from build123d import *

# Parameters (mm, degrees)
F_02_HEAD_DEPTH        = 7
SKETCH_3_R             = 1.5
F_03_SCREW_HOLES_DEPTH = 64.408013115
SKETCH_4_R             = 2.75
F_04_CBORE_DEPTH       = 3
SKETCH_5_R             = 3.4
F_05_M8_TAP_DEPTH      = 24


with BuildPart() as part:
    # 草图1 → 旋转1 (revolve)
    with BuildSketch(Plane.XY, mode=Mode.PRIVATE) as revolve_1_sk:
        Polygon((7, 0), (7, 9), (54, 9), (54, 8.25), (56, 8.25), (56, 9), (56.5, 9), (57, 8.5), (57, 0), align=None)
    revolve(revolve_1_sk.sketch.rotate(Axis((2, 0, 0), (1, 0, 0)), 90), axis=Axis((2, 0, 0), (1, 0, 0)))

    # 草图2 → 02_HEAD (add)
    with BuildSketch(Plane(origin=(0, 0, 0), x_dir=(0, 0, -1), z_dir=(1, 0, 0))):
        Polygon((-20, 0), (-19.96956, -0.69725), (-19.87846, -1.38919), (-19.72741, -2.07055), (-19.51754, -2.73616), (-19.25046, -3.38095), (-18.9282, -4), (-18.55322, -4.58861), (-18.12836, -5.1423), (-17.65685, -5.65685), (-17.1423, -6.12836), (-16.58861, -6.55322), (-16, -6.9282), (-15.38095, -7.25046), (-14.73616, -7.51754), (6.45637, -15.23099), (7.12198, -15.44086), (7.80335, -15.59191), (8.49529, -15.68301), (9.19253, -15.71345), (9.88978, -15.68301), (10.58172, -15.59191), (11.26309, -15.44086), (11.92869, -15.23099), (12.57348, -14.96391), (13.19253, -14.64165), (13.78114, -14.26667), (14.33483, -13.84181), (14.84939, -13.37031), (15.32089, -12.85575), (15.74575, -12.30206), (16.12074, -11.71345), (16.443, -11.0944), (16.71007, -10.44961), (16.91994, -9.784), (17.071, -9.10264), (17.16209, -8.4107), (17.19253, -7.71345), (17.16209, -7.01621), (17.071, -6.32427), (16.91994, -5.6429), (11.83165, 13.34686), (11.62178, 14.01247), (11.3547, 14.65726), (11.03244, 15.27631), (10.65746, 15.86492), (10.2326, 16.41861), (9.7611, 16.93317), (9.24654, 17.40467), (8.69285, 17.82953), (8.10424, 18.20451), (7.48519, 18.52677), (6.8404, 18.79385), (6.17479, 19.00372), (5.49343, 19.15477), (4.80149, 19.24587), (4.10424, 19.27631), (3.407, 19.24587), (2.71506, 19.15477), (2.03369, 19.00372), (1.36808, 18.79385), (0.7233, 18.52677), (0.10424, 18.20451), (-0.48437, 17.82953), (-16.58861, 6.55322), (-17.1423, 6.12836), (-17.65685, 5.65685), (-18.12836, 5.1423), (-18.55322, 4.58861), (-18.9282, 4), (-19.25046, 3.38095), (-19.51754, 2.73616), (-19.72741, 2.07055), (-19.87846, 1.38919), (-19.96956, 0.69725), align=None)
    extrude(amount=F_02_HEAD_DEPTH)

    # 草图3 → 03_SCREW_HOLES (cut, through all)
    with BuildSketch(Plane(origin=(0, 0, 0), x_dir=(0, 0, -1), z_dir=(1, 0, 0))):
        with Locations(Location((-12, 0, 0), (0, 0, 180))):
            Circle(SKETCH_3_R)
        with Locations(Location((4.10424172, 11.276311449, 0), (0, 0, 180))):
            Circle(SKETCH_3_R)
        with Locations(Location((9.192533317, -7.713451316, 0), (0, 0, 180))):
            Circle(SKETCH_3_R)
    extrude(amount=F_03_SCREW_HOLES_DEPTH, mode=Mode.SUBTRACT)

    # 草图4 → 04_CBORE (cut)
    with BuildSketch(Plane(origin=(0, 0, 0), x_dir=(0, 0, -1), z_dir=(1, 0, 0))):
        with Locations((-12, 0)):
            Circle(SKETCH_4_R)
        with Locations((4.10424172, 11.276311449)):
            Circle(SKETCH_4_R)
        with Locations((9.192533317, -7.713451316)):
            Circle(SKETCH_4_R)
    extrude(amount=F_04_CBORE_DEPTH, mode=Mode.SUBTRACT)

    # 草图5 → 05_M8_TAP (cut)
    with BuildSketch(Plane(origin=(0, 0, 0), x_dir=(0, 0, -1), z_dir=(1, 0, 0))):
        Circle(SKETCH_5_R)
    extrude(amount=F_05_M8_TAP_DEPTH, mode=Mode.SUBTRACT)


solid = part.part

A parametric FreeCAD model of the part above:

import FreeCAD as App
import Part
import Sketcher
Q = App.Units.Quantity

doc = App.newDocument("Part")
body = doc.addObject("PartDesign::Body", "Body")

# Sketch on XY plane
sketch1 = body.newObject("Sketcher::SketchObject", "Sketch")
sketch1.AttachmentSupport = (doc.getObject("XY_Plane"), [""])
sketch1.MapMode = "FlatFace"
sketch1.addGeometry(Part.LineSegment(App.Vector(7, 9, 0), App.Vector(7, 0, 0)), False)
sketch1.addGeometry(Part.LineSegment(App.Vector(7, 0, 0), App.Vector(57, 0, 0)), False)
sketch1.addGeometry(Part.LineSegment(App.Vector(57, 0, 0), App.Vector(57, 8.5, 0)), False)
sketch1.addGeometry(Part.LineSegment(App.Vector(57, 8.5, 0), App.Vector(56.5, 9, 0)), False)
sketch1.addGeometry(Part.LineSegment(App.Vector(56.5, 9, 0), App.Vector(56, 9, 0)), False)
sketch1.addGeometry(Part.LineSegment(App.Vector(56, 9, 0), App.Vector(56, 8.25, 0)), False)
sketch1.addGeometry(Part.LineSegment(App.Vector(56, 8.25, 0), App.Vector(54, 8.25, 0)), False)
sketch1.addGeometry(Part.LineSegment(App.Vector(54, 8.25, 0), App.Vector(54, 9, 0)), False)
sketch1.addGeometry(Part.LineSegment(App.Vector(54, 9, 0), App.Vector(7, 9, 0)), False)
sketch1.addConstraint(Sketcher.Constraint("Coincident", 0, 2, 1, 1))
sketch1.addConstraint(Sketcher.Constraint("Coincident", 1, 2, 2, 1))
sketch1.addConstraint(Sketcher.Constraint("Coincident", 2, 2, 3, 1))
sketch1.addConstraint(Sketcher.Constraint("Coincident", 3, 2, 4, 1))
sketch1.addConstraint(Sketcher.Constraint("Coincident", 4, 2, 5, 1))
sketch1.addConstraint(Sketcher.Constraint("Coincident", 5, 2, 6, 1))
sketch1.addConstraint(Sketcher.Constraint("Coincident", 6, 2, 7, 1))
sketch1.addConstraint(Sketcher.Constraint("Coincident", 7, 2, 8, 1))
sketch1.addConstraint(Sketcher.Constraint("Coincident", 8, 2, 0, 1))
sketch1.addConstraint(Sketcher.Constraint("Vertical", 0))
sketch1.addConstraint(Sketcher.Constraint("Horizontal", 1))
sketch1.addConstraint(Sketcher.Constraint("Vertical", 2))
sketch1.addConstraint(Sketcher.Constraint("Horizontal", 4))
sketch1.addConstraint(Sketcher.Constraint("Vertical", 5))
sketch1.addConstraint(Sketcher.Constraint("Horizontal", 6))
sketch1.addConstraint(Sketcher.Constraint("Vertical", 7))
sketch1.addConstraint(Sketcher.Constraint("Horizontal", 8))
sketch1.addConstraint(Sketcher.Constraint("PointOnObject", 0, 2, -1))
sketch1.addConstraint(Sketcher.Constraint("Horizontal", 4, 2, 7, 2))
sketch1.addConstraint(Sketcher.Constraint("DistanceX", 1, 1, 1, 2, 50.0))
sketch1.addConstraint(Sketcher.Constraint("DistanceX", 6, 2, 6, 1, 2.0))
sketch1.addConstraint(Sketcher.Constraint("DistanceX", 8, 2, 8, 1, 47.0))
sketch1.addConstraint(Sketcher.Constraint("DistanceY", 0, 2, 0, 1, 9.0))
sketch1.addConstraint(Sketcher.Constraint("Angle", 3, Q("135 deg")))
sketch1.addConstraint(Sketcher.Constraint("DistanceX", 4, 2, 4, 1, 0.5))
sketch1.addConstraint(Sketcher.Constraint("DistanceX", -1, 1, 0, 2, 7.0))
sketch1.addConstraint(Sketcher.Constraint("DistanceY", 5, 2, 5, 1, 0.75))
revolution = body.newObject("PartDesign::Revolution", "Revolution")
revolution.Profile = sketch1
revolution.ReferenceAxis = (sketch1, ["H_Axis"])
revolution.Angle = 360

# Sketch on YZ plane
sketch2 = body.newObject("Sketcher::SketchObject", "Sketch001")
sketch2.AttachmentSupport = (doc.getObject("YZ_Plane"), [""])
sketch2.MapMode = "FlatFace"
sketch2.addGeometry(Part.LineSegment(App.Vector(0, 20, 0), App.Vector(-0.69725, 19.96956, 0)), False)
sketch2.addGeometry(Part.LineSegment(App.Vector(-0.69725, 19.96956, 0), App.Vector(-1.38919, 19.87846, 0)), False)
sketch2.addGeometry(Part.LineSegment(App.Vector(-1.38919, 19.87846, 0), App.Vector(-2.07055, 19.72741, 0)), False)
sketch2.addGeometry(Part.LineSegment(App.Vector(-2.07055, 19.72741, 0), App.Vector(-2.73616, 19.51754, 0)), False)
sketch2.addGeometry(Part.LineSegment(App.Vector(-2.73616, 19.51754, 0), App.Vector(-3.38095, 19.25046, 0)), False)
sketch2.addGeometry(Part.LineSegment(App.Vector(-3.38095, 19.25046, 0), App.Vector(-4, 18.9282, 0)), False)
sketch2.addGeometry(Part.LineSegment(App.Vector(-4, 18.9282, 0), App.Vector(-4.58861, 18.55322, 0)), False)
sketch2.addGeometry(Part.LineSegment(App.Vector(-4.58861, 18.55322, 0), App.Vector(-5.1423, 18.12836, 0)), False)
sketch2.addGeometry(Part.LineSegment(App.Vector(-5.1423, 18.12836, 0), App.Vector(-5.65685, 17.65685, 0)), False)
sketch2.addGeometry(Part.LineSegment(App.Vector(-5.65685, 17.65685, 0), App.Vector(-6.12836, 17.1423, 0)), False)
sketch2.addGeometry(Part.LineSegment(App.Vector(-6.12836, 17.1423, 0), App.Vector(-6.55322, 16.58861, 0)), False)
sketch2.addGeometry(Part.LineSegment(App.Vector(-6.55322, 16.58861, 0), App.Vector(-6.9282, 16, 0)), False)
sketch2.addGeometry(Part.LineSegment(App.Vector(-6.9282, 16, 0), App.Vector(-7.25046, 15.38095, 0)), False)
sketch2.addGeometry(Part.LineSegment(App.Vector(-7.25046, 15.38095, 0), App.Vector(-7.51754, 14.73616, 0)), False)
sketch2.addGeometry(Part.LineSegment(App.Vector(-7.51754, 14.73616, 0), App.Vector(-15.23099, -6.45637, 0)), False)
sketch2.addGeometry(Part.LineSegment(App.Vector(-15.23099, -6.45637, 0), App.Vector(-15.44086, -7.12198, 0)), False)
sketch2.addGeometry(Part.LineSegment(App.Vector(-15.44086, -7.12198, 0), App.Vector(-15.59191, -7.80335, 0)), False)
sketch2.addGeometry(Part.LineSegment(App.Vector(-15.59191, -7.80335, 0), App.Vector(-15.68301, -8.49529, 0)), False)
sketch2.addGeometry(Part.LineSegment(App.Vector(-15.68301, -8.49529, 0), App.Vector(-15.71345, -9.19253, 0)), False)
sketch2.addGeometry(Part.LineSegment(App.Vector(-15.71345, -9.19253, 0), App.Vector(-15.68301, -9.88978, 0)), False)
sketch2.addGeometry(Part.LineSegment(App.Vector(-15.68301, -9.88978, 0), App.Vector(-15.59191, -10.58172, 0)), False)
sketch2.addGeometry(Part.LineSegment(App.Vector(-15.59191, -10.58172, 0), App.Vector(-15.44086, -11.26309, 0)), False)
sketch2.addGeometry(Part.LineSegment(App.Vector(-15.44086, -11.26309, 0), App.Vector(-15.23099, -11.92869, 0)), False)
sketch2.addGeometry(Part.LineSegment(App.Vector(-15.23099, -11.92869, 0), App.Vector(-14.96391, -12.57348, 0)), False)
sketch2.addGeometry(Part.LineSegment(App.Vector(-14.96391, -12.57348, 0), App.Vector(-14.64165, -13.19253, 0)), False)
sketch2.addGeometry(Part.LineSegment(App.Vector(-14.64165, -13.19253, 0), App.Vector(-14.26667, -13.78114, 0)), False)
sketch2.addGeometry(Part.LineSegment(App.Vector(-14.26667, -13.78114, 0), App.Vector(-13.84181, -14.33483, 0)), False)
sketch2.addGeometry(Part.LineSegment(App.Vector(-13.84181, -14.33483, 0), App.Vector(-13.37031, -14.84939, 0)), False)
sketch2.addGeometry(Part.LineSegment(App.Vector(-13.37031, -14.84939, 0), App.Vector(-12.85575, -15.32089, 0)), False)
sketch2.addGeometry(Part.LineSegment(App.Vector(-12.85575, -15.32089, 0), App.Vector(-12.30206, -15.74575, 0)), False)
sketch2.addGeometry(Part.LineSegment(App.Vector(-12.30206, -15.74575, 0), App.Vector(-11.71345, -16.12074, 0)), False)
sketch2.addGeometry(Part.LineSegment(App.Vector(-11.71345, -16.12074, 0), App.Vector(-11.0944, -16.443, 0)), False)
sketch2.addGeometry(Part.LineSegment(App.Vector(-11.0944, -16.443, 0), App.Vector(-10.44961, -16.71007, 0)), False)
sketch2.addGeometry(Part.LineSegment(App.Vector(-10.44961, -16.71007, 0), App.Vector(-9.784, -16.91994, 0)), False)
sketch2.addGeometry(Part.LineSegment(App.Vector(-9.784, -16.91994, 0), App.Vector(-9.10264, -17.071, 0)), False)
sketch2.addGeometry(Part.LineSegment(App.Vector(-9.10264, -17.071, 0), App.Vector(-8.4107, -17.16209, 0)), False)
sketch2.addGeometry(Part.LineSegment(App.Vector(-8.4107, -17.16209, 0), App.Vector(-7.71345, -17.19253, 0)), False)
sketch2.addGeometry(Part.LineSegment(App.Vector(-7.71345, -17.19253, 0), App.Vector(-7.01621, -17.16209, 0)), False)
sketch2.addGeometry(Part.LineSegment(App.Vector(-7.01621, -17.16209, 0), App.Vector(-6.32427, -17.071, 0)), False)
sketch2.addGeometry(Part.LineSegment(App.Vector(-6.32427, -17.071, 0), App.Vector(-5.6429, -16.91994, 0)), False)
sketch2.addGeometry(Part.LineSegment(App.Vector(-5.6429, -16.91994, 0), App.Vector(13.34686, -11.83165, 0)), False)
sketch2.addGeometry(Part.LineSegment(App.Vector(13.34686, -11.83165, 0), App.Vector(14.01247, -11.62178, 0)), False)
sketch2.addGeometry(Part.LineSegment(App.Vector(14.01247, -11.62178, 0), App.Vector(14.65726, -11.3547, 0)), False)
sketch2.addGeometry(Part.LineSegment(App.Vector(14.65726, -11.3547, 0), App.Vector(15.27631, -11.03244, 0)), False)
sketch2.addGeometry(Part.LineSegment(App.Vector(15.27631, -11.03244, 0), App.Vector(15.86492, -10.65746, 0)), False)
sketch2.addGeometry(Part.LineSegment(App.Vector(15.86492, -10.65746, 0), App.Vector(16.41861, -10.2326, 0)), False)
sketch2.addGeometry(Part.LineSegment(App.Vector(16.41861, -10.2326, 0), App.Vector(16.93317, -9.7611, 0)), False)
sketch2.addGeometry(Part.LineSegment(App.Vector(16.93317, -9.7611, 0), App.Vector(17.40467, -9.24654, 0)), False)
sketch2.addGeometry(Part.LineSegment(App.Vector(17.40467, -9.24654, 0), App.Vector(17.82953, -8.69285, 0)), False)
sketch2.addGeometry(Part.LineSegment(App.Vector(17.82953, -8.69285, 0), App.Vector(18.20451, -8.10424, 0)), False)
sketch2.addGeometry(Part.LineSegment(App.Vector(18.20451, -8.10424, 0), App.Vector(18.52677, -7.48519, 0)), False)
sketch2.addGeometry(Part.LineSegment(App.Vector(18.52677, -7.48519, 0), App.Vector(18.79385, -6.8404, 0)), False)
sketch2.addGeometry(Part.LineSegment(App.Vector(18.79385, -6.8404, 0), App.Vector(19.00372, -6.17479, 0)), False)
sketch2.addGeometry(Part.LineSegment(App.Vector(19.00372, -6.17479, 0), App.Vector(19.15477, -5.49343, 0)), False)
sketch2.addGeometry(Part.LineSegment(App.Vector(19.15477, -5.49343, 0), App.Vector(19.24587, -4.80149, 0)), False)
sketch2.addGeometry(Part.LineSegment(App.Vector(19.24587, -4.80149, 0), App.Vector(19.27631, -4.10424, 0)), False)
sketch2.addGeometry(Part.LineSegment(App.Vector(19.27631, -4.10424, 0), App.Vector(19.24587, -3.407, 0)), False)
sketch2.addGeometry(Part.LineSegment(App.Vector(19.24587, -3.407, 0), App.Vector(19.15477, -2.71506, 0)), False)
sketch2.addGeometry(Part.LineSegment(App.Vector(19.15477, -2.71506, 0), App.Vector(19.00372, -2.03369, 0)), False)
sketch2.addGeometry(Part.LineSegment(App.Vector(19.00372, -2.03369, 0), App.Vector(18.79385, -1.36808, 0)), False)
sketch2.addGeometry(Part.LineSegment(App.Vector(18.79385, -1.36808, 0), App.Vector(18.52677, -0.7233, 0)), False)
sketch2.addGeometry(Part.LineSegment(App.Vector(18.52677, -0.7233, 0), App.Vector(18.20451, -0.10424, 0)), False)
sketch2.addGeometry(Part.LineSegment(App.Vector(18.20451, -0.10424, 0), App.Vector(17.82953, 0.48437, 0)), False)
sketch2.addGeometry(Part.LineSegment(App.Vector(17.82953, 0.48437, 0), App.Vector(6.55322, 16.58861, 0)), False)
sketch2.addGeometry(Part.LineSegment(App.Vector(6.55322, 16.58861, 0), App.Vector(6.12836, 17.1423, 0)), False)
sketch2.addGeometry(Part.LineSegment(App.Vector(6.12836, 17.1423, 0), App.Vector(5.65685, 17.65685, 0)), False)
sketch2.addGeometry(Part.LineSegment(App.Vector(5.65685, 17.65685, 0), App.Vector(5.1423, 18.12836, 0)), False)
sketch2.addGeometry(Part.LineSegment(App.Vector(5.1423, 18.12836, 0), App.Vector(4.58861, 18.55322, 0)), False)
sketch2.addGeometry(Part.LineSegment(App.Vector(4.58861, 18.55322, 0), App.Vector(4, 18.9282, 0)), False)
sketch2.addGeometry(Part.LineSegment(App.Vector(4, 18.9282, 0), App.Vector(3.38095, 19.25046, 0)), False)
sketch2.addGeometry(Part.LineSegment(App.Vector(3.38095, 19.25046, 0), App.Vector(2.73616, 19.51754, 0)), False)
sketch2.addGeometry(Part.LineSegment(App.Vector(2.73616, 19.51754, 0), App.Vector(2.07055, 19.72741, 0)), False)
sketch2.addGeometry(Part.LineSegment(App.Vector(2.07055, 19.72741, 0), App.Vector(1.38919, 19.87846, 0)), False)
sketch2.addGeometry(Part.LineSegment(App.Vector(1.38919, 19.87846, 0), App.Vector(0.69725, 19.96956, 0)), False)
sketch2.addGeometry(Part.LineSegment(App.Vector(0.69725, 19.96956, 0), App.Vector(0, 20, 0)), False)
sketch2.addConstraint(Sketcher.Constraint("Coincident", 0, 2, 1, 1))
sketch2.addConstraint(Sketcher.Constraint("Coincident", 1, 2, 2, 1))
sketch2.addConstraint(Sketcher.Constraint("Coincident", 2, 2, 3, 1))
sketch2.addConstraint(Sketcher.Constraint("Coincident", 3, 2, 4, 1))
sketch2.addConstraint(Sketcher.Constraint("Coincident", 4, 2, 5, 1))
sketch2.addConstraint(Sketcher.Constraint("Coincident", 5, 2, 6, 1))
sketch2.addConstraint(Sketcher.Constraint("Coincident", 6, 2, 7, 1))
sketch2.addConstraint(Sketcher.Constraint("Coincident", 7, 2, 8, 1))
sketch2.addConstraint(Sketcher.Constraint("Coincident", 8, 2, 9, 1))
sketch2.addConstraint(Sketcher.Constraint("Coincident", 9, 2, 10, 1))
sketch2.addConstraint(Sketcher.Constraint("Coincident", 10, 2, 11, 1))
sketch2.addConstraint(Sketcher.Constraint("Coincident", 11, 2, 12, 1))
sketch2.addConstraint(Sketcher.Constraint("Coincident", 12, 2, 13, 1))
sketch2.addConstraint(Sketcher.Constraint("Coincident", 13, 2, 14, 1))
sketch2.addConstraint(Sketcher.Constraint("Coincident", 14, 2, 15, 1))
sketch2.addConstraint(Sketcher.Constraint("Coincident", 15, 2, 16, 1))
sketch2.addConstraint(Sketcher.Constraint("Coincident", 16, 2, 17, 1))
sketch2.addConstraint(Sketcher.Constraint("Coincident", 17, 2, 18, 1))
sketch2.addConstraint(Sketcher.Constraint("Coincident", 18, 2, 19, 1))
sketch2.addConstraint(Sketcher.Constraint("Coincident", 19, 2, 20, 1))
sketch2.addConstraint(Sketcher.Constraint("Coincident", 20, 2, 21, 1))
sketch2.addConstraint(Sketcher.Constraint("Coincident", 21, 2, 22, 1))
sketch2.addConstraint(Sketcher.Constraint("Coincident", 22, 2, 23, 1))
sketch2.addConstraint(Sketcher.Constraint("Coincident", 23, 2, 24, 1))
sketch2.addConstraint(Sketcher.Constraint("Coincident", 24, 2, 25, 1))
sketch2.addConstraint(Sketcher.Constraint("Coincident", 25, 2, 26, 1))
sketch2.addConstraint(Sketcher.Constraint("Coincident", 26, 2, 27, 1))
sketch2.addConstraint(Sketcher.Constraint("Coincident", 27, 2, 28, 1))
sketch2.addConstraint(Sketcher.Constraint("Coincident", 28, 2, 29, 1))
sketch2.addConstraint(Sketcher.Constraint("Coincident", 29, 2, 30, 1))
sketch2.addConstraint(Sketcher.Constraint("Coincident", 30, 2, 31, 1))
sketch2.addConstraint(Sketcher.Constraint("Coincident", 31, 2, 32, 1))
sketch2.addConstraint(Sketcher.Constraint("Coincident", 32, 2, 33, 1))
sketch2.addConstraint(Sketcher.Constraint("Coincident", 33, 2, 34, 1))
sketch2.addConstraint(Sketcher.Constraint("Coincident", 34, 2, 35, 1))
sketch2.addConstraint(Sketcher.Constraint("Coincident", 35, 2, 36, 1))
sketch2.addConstraint(Sketcher.Constraint("Coincident", 36, 2, 37, 1))
sketch2.addConstraint(Sketcher.Constraint("Coincident", 37, 2, 38, 1))
sketch2.addConstraint(Sketcher.Constraint("Coincident", 38, 2, 39, 1))
sketch2.addConstraint(Sketcher.Constraint("Coincident", 39, 2, 40, 1))
sketch2.addConstraint(Sketcher.Constraint("Coincident", 40, 2, 41, 1))
sketch2.addConstraint(Sketcher.Constraint("Coincident", 41, 2, 42, 1))
sketch2.addConstraint(Sketcher.Constraint("Coincident", 42, 2, 43, 1))
sketch2.addConstraint(Sketcher.Constraint("Coincident", 43, 2, 44, 1))
sketch2.addConstraint(Sketcher.Constraint("Coincident", 44, 2, 45, 1))
sketch2.addConstraint(Sketcher.Constraint("Coincident", 45, 2, 46, 1))
sketch2.addConstraint(Sketcher.Constraint("Coincident", 46, 2, 47, 1))
sketch2.addConstraint(Sketcher.Constraint("Coincident", 47, 2, 48, 1))
sketch2.addConstraint(Sketcher.Constraint("Coincident", 48, 2, 49, 1))
sketch2.addConstraint(Sketcher.Constraint("Coincident", 49, 2, 50, 1))
sketch2.addConstraint(Sketcher.Constraint("Coincident", 50, 2, 51, 1))
sketch2.addConstraint(Sketcher.Constraint("Coincident", 51, 2, 52, 1))
sketch2.addConstraint(Sketcher.Constraint("Coincident", 52, 2, 53, 1))
sketch2.addConstraint(Sketcher.Constraint("Coincident", 53, 2, 54, 1))
sketch2.addConstraint(Sketcher.Constraint("Coincident", 54, 2, 55, 1))
sketch2.addConstraint(Sketcher.Constraint("Coincident", 55, 2, 56, 1))
sketch2.addConstraint(Sketcher.Constraint("Coincident", 56, 2, 57, 1))
sketch2.addConstraint(Sketcher.Constraint("Coincident", 57, 2, 58, 1))
sketch2.addConstraint(Sketcher.Constraint("Coincident", 58, 2, 59, 1))
sketch2.addConstraint(Sketcher.Constraint("Coincident", 59, 2, 60, 1))
sketch2.addConstraint(Sketcher.Constraint("Coincident", 60, 2, 61, 1))
sketch2.addConstraint(Sketcher.Constraint("Coincident", 61, 2, 62, 1))
sketch2.addConstraint(Sketcher.Constraint("Coincident", 62, 2, 63, 1))
sketch2.addConstraint(Sketcher.Constraint("Coincident", 63, 2, 64, 1))
sketch2.addConstraint(Sketcher.Constraint("Coincident", 64, 2, 65, 1))
sketch2.addConstraint(Sketcher.Constraint("Coincident", 65, 2, 66, 1))
sketch2.addConstraint(Sketcher.Constraint("Coincident", 66, 2, 67, 1))
sketch2.addConstraint(Sketcher.Constraint("Coincident", 67, 2, 68, 1))
sketch2.addConstraint(Sketcher.Constraint("Coincident", 68, 2, 69, 1))
sketch2.addConstraint(Sketcher.Constraint("Coincident", 69, 2, 70, 1))
sketch2.addConstraint(Sketcher.Constraint("Coincident", 70, 2, 71, 1))
sketch2.addConstraint(Sketcher.Constraint("Coincident", 71, 2, 72, 1))
sketch2.addConstraint(Sketcher.Constraint("Coincident", 72, 2, 73, 1))
sketch2.addConstraint(Sketcher.Constraint("Coincident", 73, 2, 74, 1))
sketch2.addConstraint(Sketcher.Constraint("Coincident", 74, 2, 0, 1))
sketch2.addConstraint(Sketcher.Constraint("PointOnObject", 74, 2, -2))
sketch2.addConstraint(Sketcher.Constraint("DistanceX", 5, 2, -1, 1, 4.0))
sketch2.addConstraint(Sketcher.Constraint("DistanceY", -1, 1, 11, 2, 16.0))
sketch2.addConstraint(Sketcher.Constraint("DistanceX", -1, 1, 68, 2, 4.0))
sketch2.addConstraint(Sketcher.Constraint("DistanceY", -1, 1, 74, 2, 20.0))
sketch2.addConstraint(Sketcher.Constraint("DistanceY", 31, 2, -1, 1, 16.443))
sketch2.addConstraint(Sketcher.Constraint("DistanceX", 33, 2, -1, 1, 9.784))
sketch2.addConstraint(Sketcher.Constraint("DistanceY", 34, 2, -1, 1, 17.071))
sketch2.addConstraint(Sketcher.Constraint("DistanceY", 38, 2, -1, 1, 17.071))
sketch2.addConstraint(Sketcher.Constraint("DistanceY", 56, 2, -1, 1, 3.407))
sketch2.addConstraint(Sketcher.Constraint("DistanceY", -1, 1, 5, 2, 18.9282))
sketch2.addConstraint(Sketcher.Constraint("DistanceX", 7, 2, -1, 1, 5.1423))
sketch2.addConstraint(Sketcher.Constraint("DistanceY", -1, 1, 9, 2, 17.1423))
sketch2.addConstraint(Sketcher.Constraint("DistanceX", 11, 2, -1, 1, 6.9282))
sketch2.addConstraint(Sketcher.Constraint("DistanceX", 31, 2, -1, 1, 11.0944))
sketch2.addConstraint(Sketcher.Constraint("DistanceX", 35, 2, -1, 1, 8.4107))
sketch2.addConstraint(Sketcher.Constraint("DistanceX", 39, 2, -1, 1, 5.6429))
sketch2.addConstraint(Sketcher.Constraint("DistanceY", 42, 2, -1, 1, 11.3547))
sketch2.addConstraint(Sketcher.Constraint("DistanceY", 45, 2, -1, 1, 10.2326))
sketch2.addConstraint(Sketcher.Constraint("DistanceY", 46, 2, -1, 1, 9.7611))
sketch2.addConstraint(Sketcher.Constraint("DistanceY", 51, 2, -1, 1, 6.8404))
sketch2.addConstraint(Sketcher.Constraint("DistanceY", 60, 2, -1, 1, 0.7233))
sketch2.addConstraint(Sketcher.Constraint("DistanceY", -1, 1, 64, 2, 17.1423))
sketch2.addConstraint(Sketcher.Constraint("DistanceX", -1, 1, 66, 2, 5.1423))
sketch2.addConstraint(Sketcher.Constraint("DistanceY", -1, 1, 68, 2, 18.9282))
sketch2.addConstraint(Sketcher.Constraint("Distance", 1, 0.697911))
sketch2.addConstraint(Sketcher.Constraint("Distance", 7, 0.69791))
sketch2.addConstraint(Sketcher.Constraint("Distance", 10, 0.69791))
sketch2.addConstraint(Sketcher.Constraint("Distance", 14, 22.552619))
sketch2.addConstraint(Sketcher.Constraint("Distance", 17, 0.697911))
sketch2.addConstraint(Sketcher.Constraint("Distance", 20, 0.697911))
sketch2.addConstraint(Sketcher.Constraint("Distance", 26, 0.69791))
sketch2.addConstraint(Sketcher.Constraint("Distance", 29, 0.69791))
sketch2.addConstraint(Sketcher.Constraint("Distance", 30, 0.697911))
sketch2.addConstraint(Sketcher.Constraint("Distance", 32, 0.697912))
sketch2.addConstraint(Sketcher.Constraint("Distance", 35, 0.69791))
sketch2.addConstraint(Sketcher.Constraint("Distance", 38, 0.69791))
sketch2.addConstraint(Sketcher.Constraint("Distance", 45, 0.69791))
sketch2.addConstraint(Sketcher.Constraint("Distance", 48, 0.69791))
sketch2.addConstraint(Sketcher.Constraint("Distance", 54, 0.697911))
sketch2.addConstraint(Sketcher.Constraint("Distance", 57, 0.697911))
sketch2.addConstraint(Sketcher.Constraint("Distance", 64, 0.69791))
sketch2.addConstraint(Sketcher.Constraint("Distance", 67, 0.69791))
sketch2.addConstraint(Sketcher.Constraint("Distance", 73, 0.697911))
sketch2.addConstraint(Sketcher.Constraint("DistanceX", 0, 2, -1, 1, 0.69725))
sketch2.addConstraint(Sketcher.Constraint("DistanceY", -1, 1, 0, 2, 19.96956))
sketch2.addConstraint(Sketcher.Constraint("DistanceX", 1, 2, -1, 1, 1.38919))
sketch2.addConstraint(Sketcher.Constraint("DistanceX", 2, 2, -1, 1, 2.07055))
sketch2.addConstraint(Sketcher.Constraint("DistanceY", -1, 1, 2, 2, 19.72741))
sketch2.addConstraint(Sketcher.Constraint("DistanceX", 3, 2, -1, 1, 2.73616))
sketch2.addConstraint(Sketcher.Constraint("DistanceY", -1, 1, 3, 2, 19.51754))
sketch2.addConstraint(Sketcher.Constraint("DistanceX", 4, 2, -1, 1, 3.38095))
sketch2.addConstraint(Sketcher.Constraint("DistanceY", -1, 1, 4, 2, 19.25046))
sketch2.addConstraint(Sketcher.Constraint("DistanceX", 6, 2, -1, 1, 4.58861))
sketch2.addConstraint(Sketcher.Constraint("DistanceY", -1, 1, 6, 2, 18.55322))
sketch2.addConstraint(Sketcher.Constraint("DistanceX", 8, 2, -1, 1, 5.65685))
sketch2.addConstraint(Sketcher.Constraint("DistanceY", -1, 1, 8, 2, 17.65685))
sketch2.addConstraint(Sketcher.Constraint("DistanceX", 9, 2, -1, 1, 6.12836))
sketch2.addConstraint(Sketcher.Constraint("DistanceX", 10, 2, -1, 1, 6.55322))
sketch2.addConstraint(Sketcher.Constraint("DistanceX", 12, 2, -1, 1, 7.25046))
sketch2.addConstraint(Sketcher.Constraint("DistanceY", -1, 1, 12, 2, 15.38095))
sketch2.addConstraint(Sketcher.Constraint("DistanceX", 13, 2, -1, 1, 7.51754))
sketch2.addConstraint(Sketcher.Constraint("DistanceY", -1, 1, 13, 2, 14.73616))
sketch2.addConstraint(Sketcher.Constraint("DistanceX", 14, 2, -1, 1, 15.23099))
sketch2.addConstraint(Sketcher.Constraint("DistanceX", 15, 2, -1, 1, 15.44086))
sketch2.addConstraint(Sketcher.Constraint("DistanceY", 15, 2, -1, 1, 7.12198))
sketch2.addConstraint(Sketcher.Constraint("DistanceX", 16, 2, -1, 1, 15.59191))
sketch2.addConstraint(Sketcher.Constraint("DistanceY", 16, 2, -1, 1, 7.80335))
sketch2.addConstraint(Sketcher.Constraint("DistanceX", 17, 2, -1, 1, 15.68301))
sketch2.addConstraint(Sketcher.Constraint("DistanceX", 18, 2, -1, 1, 15.71345))
sketch2.addConstraint(Sketcher.Constraint("DistanceY", 18, 2, -1, 1, 9.19253))
sketch2.addConstraint(Sketcher.Constraint("DistanceX", 19, 2, -1, 1, 15.68301))
sketch2.addConstraint(Sketcher.Constraint("DistanceY", 19, 2, -1, 1, 9.88978))
sketch2.addConstraint(Sketcher.Constraint("DistanceX", 20, 2, -1, 1, 15.59191))
sketch2.addConstraint(Sketcher.Constraint("DistanceX", 21, 2, -1, 1, 15.44086))
sketch2.addConstraint(Sketcher.Constraint("DistanceY", 21, 2, -1, 1, 11.26309))
sketch2.addConstraint(Sketcher.Constraint("DistanceX", 22, 2, -1, 1, 15.23099))
sketch2.addConstraint(Sketcher.Constraint("DistanceY", 22, 2, -1, 1, 11.92869))
sketch2.addConstraint(Sketcher.Constraint("DistanceX", 23, 2, -1, 1, 14.96391))
sketch2.addConstraint(Sketcher.Constraint("DistanceY", 23, 2, -1, 1, 12.57348))
sketch2.addConstraint(Sketcher.Constraint("DistanceX", 24, 2, -1, 1, 14.64165))
sketch2.addConstraint(Sketcher.Constraint("DistanceY", 24, 2, -1, 1, 13.19253))
sketch2.addConstraint(Sketcher.Constraint("DistanceX", 25, 2, -1, 1, 14.26667))
sketch2.addConstraint(Sketcher.Constraint("DistanceY", 25, 2, -1, 1, 13.78114))
sketch2.addConstraint(Sketcher.Constraint("DistanceX", 26, 2, -1, 1, 13.84181))
sketch2.addConstraint(Sketcher.Constraint("DistanceX", 27, 2, -1, 1, 13.37031))
sketch2.addConstraint(Sketcher.Constraint("DistanceY", 27, 2, -1, 1, 14.84939))
sketch2.addConstraint(Sketcher.Constraint("DistanceX", 28, 2, -1, 1, 12.85575))
sketch2.addConstraint(Sketcher.Constraint("DistanceY", 28, 2, -1, 1, 15.32089))
sketch2.addConstraint(Sketcher.Constraint("DistanceX", 29, 2, -1, 1, 12.30206))
sketch2.addConstraint(Sketcher.Constraint("DistanceX", 30, 2, -1, 1, 11.71345))
sketch2.addConstraint(Sketcher.Constraint("DistanceX", 32, 2, -1, 1, 10.44961))
sketch2.addConstraint(Sketcher.Constraint("DistanceY", 33, 2, -1, 1, 16.91994))
sketch2.addConstraint(Sketcher.Constraint("DistanceX", 34, 2, -1, 1, 9.10264))
sketch2.addConstraint(Sketcher.Constraint("DistanceX", 36, 2, -1, 1, 7.71345))
sketch2.addConstraint(Sketcher.Constraint("DistanceY", 36, 2, -1, 1, 17.19253))
sketch2.addConstraint(Sketcher.Constraint("DistanceX", 37, 2, -1, 1, 7.01621))
sketch2.addConstraint(Sketcher.Constraint("DistanceY", 37, 2, -1, 1, 17.16209))
sketch2.addConstraint(Sketcher.Constraint("DistanceY", 39, 2, -1, 1, 16.91994))
sketch2.addConstraint(Sketcher.Constraint("DistanceX", -1, 1, 40, 2, 13.34686))
sketch2.addConstraint(Sketcher.Constraint("DistanceY", 40, 2, -1, 1, 11.83165))
sketch2.addConstraint(Sketcher.Constraint("DistanceX", -1, 1, 41, 2, 14.01247))
sketch2.addConstraint(Sketcher.Constraint("DistanceY", 41, 2, -1, 1, 11.62178))
sketch2.addConstraint(Sketcher.Constraint("DistanceX", -1, 1, 42, 2, 14.65726))
sketch2.addConstraint(Sketcher.Constraint("DistanceX", -1, 1, 43, 2, 15.27631))
sketch2.addConstraint(Sketcher.Constraint("DistanceY", 43, 2, -1, 1, 11.03244))
sketch2.addConstraint(Sketcher.Constraint("DistanceX", -1, 1, 44, 2, 15.86492))
sketch2.addConstraint(Sketcher.Constraint("DistanceY", 44, 2, -1, 1, 10.65746))
sketch2.addConstraint(Sketcher.Constraint("DistanceX", -1, 1, 46, 2, 16.93317))
sketch2.addConstraint(Sketcher.Constraint("DistanceX", -1, 1, 47, 2, 17.40467))
sketch2.addConstraint(Sketcher.Constraint("DistanceY", 47, 2, -1, 1, 9.24654))
sketch2.addConstraint(Sketcher.Constraint("DistanceX", -1, 1, 48, 2, 17.82953))
sketch2.addConstraint(Sketcher.Constraint("DistanceX", -1, 1, 49, 2, 18.20451))
sketch2.addConstraint(Sketcher.Constraint("DistanceY", 49, 2, -1, 1, 8.10424))
sketch2.addConstraint(Sketcher.Constraint("DistanceX", -1, 1, 50, 2, 18.52677))
sketch2.addConstraint(Sketcher.Constraint("DistanceY", 50, 2, -1, 1, 7.48519))
sketch2.addConstraint(Sketcher.Constraint("DistanceX", -1, 1, 51, 2, 18.79385))
sketch2.addConstraint(Sketcher.Constraint("DistanceX", -1, 1, 52, 2, 19.00372))
sketch2.addConstraint(Sketcher.Constraint("DistanceY", 52, 2, -1, 1, 6.17479))
sketch2.addConstraint(Sketcher.Constraint("DistanceX", -1, 1, 53, 2, 19.15477))
sketch2.addConstraint(Sketcher.Constraint("DistanceY", 53, 2, -1, 1, 5.49343))
sketch2.addConstraint(Sketcher.Constraint("DistanceX", -1, 1, 54, 2, 19.24587))
sketch2.addConstraint(Sketcher.Constraint("DistanceX", -1, 1, 55, 2, 19.27631))
sketch2.addConstraint(Sketcher.Constraint("DistanceY", 55, 2, -1, 1, 4.10424))
sketch2.addConstraint(Sketcher.Constraint("DistanceX", -1, 1, 56, 2, 19.24587))
sketch2.addConstraint(Sketcher.Constraint("DistanceX", -1, 1, 57, 2, 19.15477))
sketch2.addConstraint(Sketcher.Constraint("DistanceX", -1, 1, 58, 2, 19.00372))
sketch2.addConstraint(Sketcher.Constraint("DistanceY", 58, 2, -1, 1, 2.03369))
sketch2.addConstraint(Sketcher.Constraint("DistanceX", -1, 1, 59, 2, 18.79385))
sketch2.addConstraint(Sketcher.Constraint("DistanceY", 59, 2, -1, 1, 1.36808))
sketch2.addConstraint(Sketcher.Constraint("DistanceX", -1, 1, 60, 2, 18.52677))
sketch2.addConstraint(Sketcher.Constraint("DistanceX", -1, 1, 61, 2, 18.20451))
sketch2.addConstraint(Sketcher.Constraint("DistanceY", 61, 2, -1, 1, 0.10424))
sketch2.addConstraint(Sketcher.Constraint("DistanceX", -1, 1, 62, 2, 17.82953))
sketch2.addConstraint(Sketcher.Constraint("DistanceY", -1, 1, 62, 2, 0.48437))
sketch2.addConstraint(Sketcher.Constraint("DistanceX", -1, 1, 63, 2, 6.55322))
sketch2.addConstraint(Sketcher.Constraint("DistanceY", -1, 1, 63, 2, 16.58861))
sketch2.addConstraint(Sketcher.Constraint("DistanceX", -1, 1, 65, 2, 5.65685))
sketch2.addConstraint(Sketcher.Constraint("DistanceY", -1, 1, 65, 2, 17.65685))
sketch2.addConstraint(Sketcher.Constraint("DistanceY", -1, 1, 66, 2, 18.12836))
sketch2.addConstraint(Sketcher.Constraint("DistanceX", -1, 1, 67, 2, 4.58861))
sketch2.addConstraint(Sketcher.Constraint("DistanceX", -1, 1, 69, 2, 3.38095))
sketch2.addConstraint(Sketcher.Constraint("DistanceY", -1, 1, 69, 2, 19.25046))
sketch2.addConstraint(Sketcher.Constraint("DistanceX", -1, 1, 70, 2, 2.73616))
sketch2.addConstraint(Sketcher.Constraint("DistanceY", -1, 1, 70, 2, 19.51754))
sketch2.addConstraint(Sketcher.Constraint("DistanceX", -1, 1, 71, 2, 2.07055))
sketch2.addConstraint(Sketcher.Constraint("DistanceY", -1, 1, 71, 2, 19.72741))
sketch2.addConstraint(Sketcher.Constraint("DistanceX", -1, 1, 72, 2, 1.38919))
sketch2.addConstraint(Sketcher.Constraint("DistanceY", -1, 1, 72, 2, 19.87846))
sketch2.addConstraint(Sketcher.Constraint("DistanceX", -1, 1, 73, 2, 0.69725))
pad1 = body.newObject("PartDesign::Pad", "Pad")
pad1.Profile = sketch2
pad1.Length = 7

# Sketch on YZ plane
sketch3 = body.newObject("Sketcher::SketchObject", "Sketch002")
sketch3.AttachmentSupport = (doc.getObject("YZ_Plane"), [""])
sketch3.MapMode = "FlatFace"
sketch3.addGeometry(Part.Circle(App.Vector(0, 12, 0), App.Vector(0, 0, 1), 1.5), False)
sketch3.addGeometry(Part.Circle(App.Vector(11.276311, -4.104242, 0), App.Vector(0, 0, 1), 1.5), False)
sketch3.addGeometry(Part.Circle(App.Vector(-7.713451, -9.192533, 0), App.Vector(0, 0, 1), 1.5), False)
sketch3.addConstraint(Sketcher.Constraint("Equal", 0, 1))
sketch3.addConstraint(Sketcher.Constraint("Equal", 1, 2))
sketch3.addConstraint(Sketcher.Constraint("PointOnObject", 0, 3, -2))
sketch3.addConstraint(Sketcher.Constraint("Diameter", 0, 3.0))
sketch3.addConstraint(Sketcher.Constraint("DistanceY", -1, 1, 0, 3, 12.0))
sketch3.addConstraint(Sketcher.Constraint("DistanceX", -1, 1, 1, 3, 11.276311))
sketch3.addConstraint(Sketcher.Constraint("DistanceY", 1, 3, -1, 1, 4.104242))
sketch3.addConstraint(Sketcher.Constraint("DistanceX", 2, 3, -1, 1, 7.713451))
sketch3.addConstraint(Sketcher.Constraint("DistanceY", 2, 3, 1, 3, 5.088292))
pocket1 = body.newObject("PartDesign::Pocket", "Pocket")
pocket1.Profile = sketch3
pocket1.Type = "ThroughAll"
pocket1.Reversed = True

# Sketch on YZ plane
sketch4 = body.newObject("Sketcher::SketchObject", "Sketch003")
sketch4.AttachmentSupport = (doc.getObject("YZ_Plane"), [""])
sketch4.MapMode = "FlatFace"
sketch4.addGeometry(Part.Circle(App.Vector(0, 12, 0), App.Vector(0, 0, 1), 2.75), False)
sketch4.addGeometry(Part.Circle(App.Vector(11.276311, -4.104242, 0), App.Vector(0, 0, 1), 2.75), False)
sketch4.addGeometry(Part.Circle(App.Vector(-7.713451, -9.192533, 0), App.Vector(0, 0, 1), 2.75), False)
sketch4.addConstraint(Sketcher.Constraint("Equal", 0, 1))
sketch4.addConstraint(Sketcher.Constraint("Equal", 1, 2))
sketch4.addConstraint(Sketcher.Constraint("PointOnObject", 0, 3, -2))
sketch4.addConstraint(Sketcher.Constraint("Diameter", 0, 5.5))
sketch4.addConstraint(Sketcher.Constraint("DistanceY", -1, 1, 0, 3, 12.0))
sketch4.addConstraint(Sketcher.Constraint("DistanceX", -1, 1, 1, 3, 11.276311))
sketch4.addConstraint(Sketcher.Constraint("DistanceY", 1, 3, -1, 1, 4.104242))
sketch4.addConstraint(Sketcher.Constraint("DistanceX", 2, 3, -1, 1, 7.713451))
sketch4.addConstraint(Sketcher.Constraint("DistanceY", 2, 3, 1, 3, 5.088292))
pocket2 = body.newObject("PartDesign::Pocket", "Pocket001")
pocket2.Profile = sketch4
pocket2.Length = 3
pocket2.Reversed = True

# Sketch on YZ plane
sketch5 = body.newObject("Sketcher::SketchObject", "Sketch004")
sketch5.AttachmentSupport = (doc.getObject("YZ_Plane"), [""])
sketch5.MapMode = "FlatFace"
sketch5.addGeometry(Part.Circle(App.Vector(0, 0, 0), App.Vector(0, 0, 1), 3.4), False)
sketch5.addConstraint(Sketcher.Constraint("Coincident", 0, 3, -1, 1))
sketch5.addConstraint(Sketcher.Constraint("Diameter", 0, 6.8))
pocket3 = body.newObject("PartDesign::Pocket", "Pocket002")
pocket3.Profile = sketch5
pocket3.Length = 24
pocket3.Reversed = True

doc.recompute()
